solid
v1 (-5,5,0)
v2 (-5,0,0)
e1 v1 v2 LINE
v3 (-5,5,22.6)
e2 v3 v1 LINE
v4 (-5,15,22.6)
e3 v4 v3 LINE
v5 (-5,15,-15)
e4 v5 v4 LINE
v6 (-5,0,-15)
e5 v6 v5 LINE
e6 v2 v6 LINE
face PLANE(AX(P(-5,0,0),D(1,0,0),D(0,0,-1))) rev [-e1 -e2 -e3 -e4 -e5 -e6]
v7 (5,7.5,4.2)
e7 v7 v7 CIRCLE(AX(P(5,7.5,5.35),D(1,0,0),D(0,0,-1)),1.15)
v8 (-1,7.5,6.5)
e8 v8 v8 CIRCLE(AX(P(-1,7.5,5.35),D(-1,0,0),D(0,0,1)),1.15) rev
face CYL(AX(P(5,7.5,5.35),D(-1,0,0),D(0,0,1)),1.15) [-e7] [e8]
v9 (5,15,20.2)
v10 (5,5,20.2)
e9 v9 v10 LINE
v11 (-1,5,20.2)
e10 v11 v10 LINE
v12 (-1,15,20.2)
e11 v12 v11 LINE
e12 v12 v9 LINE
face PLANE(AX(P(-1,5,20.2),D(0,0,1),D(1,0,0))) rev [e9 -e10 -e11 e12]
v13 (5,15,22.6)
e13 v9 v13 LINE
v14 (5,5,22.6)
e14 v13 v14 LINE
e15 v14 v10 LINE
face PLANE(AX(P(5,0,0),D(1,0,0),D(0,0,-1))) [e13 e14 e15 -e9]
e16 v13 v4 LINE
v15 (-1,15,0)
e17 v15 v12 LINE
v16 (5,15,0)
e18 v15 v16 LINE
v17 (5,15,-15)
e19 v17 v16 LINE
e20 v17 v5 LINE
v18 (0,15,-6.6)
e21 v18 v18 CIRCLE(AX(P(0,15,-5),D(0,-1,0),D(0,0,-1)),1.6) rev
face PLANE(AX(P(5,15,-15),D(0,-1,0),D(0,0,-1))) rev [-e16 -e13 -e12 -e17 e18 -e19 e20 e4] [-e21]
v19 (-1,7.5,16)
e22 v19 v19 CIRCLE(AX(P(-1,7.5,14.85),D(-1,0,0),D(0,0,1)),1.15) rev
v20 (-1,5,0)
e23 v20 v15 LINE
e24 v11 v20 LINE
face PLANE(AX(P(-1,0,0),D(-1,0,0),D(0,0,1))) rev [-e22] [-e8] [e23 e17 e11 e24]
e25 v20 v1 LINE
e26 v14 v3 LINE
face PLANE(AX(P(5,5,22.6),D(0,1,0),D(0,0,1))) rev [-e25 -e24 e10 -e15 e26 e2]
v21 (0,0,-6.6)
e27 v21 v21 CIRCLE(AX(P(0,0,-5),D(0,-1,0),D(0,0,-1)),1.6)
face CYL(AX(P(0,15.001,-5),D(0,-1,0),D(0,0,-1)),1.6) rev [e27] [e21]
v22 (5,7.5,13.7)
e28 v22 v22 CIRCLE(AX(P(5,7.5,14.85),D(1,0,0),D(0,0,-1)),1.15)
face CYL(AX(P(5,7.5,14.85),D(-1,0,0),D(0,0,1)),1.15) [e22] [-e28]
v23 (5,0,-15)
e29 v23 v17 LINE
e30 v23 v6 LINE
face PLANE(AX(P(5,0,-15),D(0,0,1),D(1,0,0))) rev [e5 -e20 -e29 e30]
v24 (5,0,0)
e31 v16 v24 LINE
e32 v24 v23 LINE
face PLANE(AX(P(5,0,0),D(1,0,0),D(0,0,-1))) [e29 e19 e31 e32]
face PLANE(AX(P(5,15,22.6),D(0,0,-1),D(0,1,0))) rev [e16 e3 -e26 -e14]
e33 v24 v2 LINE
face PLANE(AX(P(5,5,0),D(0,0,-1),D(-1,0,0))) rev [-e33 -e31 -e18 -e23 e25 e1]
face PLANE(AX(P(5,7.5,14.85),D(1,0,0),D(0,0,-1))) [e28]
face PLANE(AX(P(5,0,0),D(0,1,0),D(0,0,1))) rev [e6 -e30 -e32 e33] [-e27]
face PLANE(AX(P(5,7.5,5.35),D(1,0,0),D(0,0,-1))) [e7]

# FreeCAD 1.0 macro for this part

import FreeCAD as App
import Part
import Sketcher
Q = App.Units.Quantity

doc = App.newDocument("Part")
body = doc.addObject("PartDesign::Body", "Body")

sketch1 = body.newObject("Sketcher::SketchObject", "Sketch")
sketch1.AttachmentSupport = (doc.getObject("YZ_Plane"), [""])
sketch1.MapMode = "FlatFace"
sketch1.addGeometry([
    Part.LineSegment(App.Vector(0, 0, 0), App.Vector(0, -15, 0)),
    Part.LineSegment(App.Vector(0, -15, 0), App.Vector(15, -15, 0)),
    Part.LineSegment(App.Vector(15, -15, 0), App.Vector(15, 23, 0)),
    Part.LineSegment(App.Vector(15, 23, 0), App.Vector(5, 23, 0)),
    Part.LineSegment(App.Vector(5, 23, 0), App.Vector(5, 0, 0)),
    Part.LineSegment(App.Vector(5, 0, 0), App.Vector(0, 0, 0)),
], False)
sketch1.addConstraint([
    Sketcher.Constraint("Coincident", 0, 2, 1, 1),
    Sketcher.Constraint("Coincident", 1, 2, 2, 1),
    Sketcher.Constraint("Coincident", 2, 2, 3, 1),
    Sketcher.Constraint("Coincident", 3, 2, 4, 1),
    Sketcher.Constraint("Coincident", 4, 2, 5, 1),
    Sketcher.Constraint("Coincident", 5, 2, 0, 1),
    Sketcher.Constraint("Vertical", 0),
    Sketcher.Constraint("Horizontal", 1),
    Sketcher.Constraint("Vertical", 2),
    Sketcher.Constraint("Horizontal", 3),
    Sketcher.Constraint("Vertical", 4),
    Sketcher.Constraint("Horizontal", 5),
    Sketcher.Constraint("Coincident", 5, 2, -1, 1),
    Sketcher.Constraint("Equal", 1, 0),
    Sketcher.Constraint("DistanceX", 1, 1, 1, 2, Q("15 mm")),
    Sketcher.Constraint("DistanceX", 3, 2, 3, 1, Q("10 mm")),
    Sketcher.Constraint("DistanceY", 2, 1, 2, 2, Q("37.6 mm")),
])
pad1 = body.newObject("PartDesign::Pad", "Pad")
pad1.Profile = sketch1
pad1.Length = 10
pad1.Midplane = True

sketch2 = body.newObject("Sketcher::SketchObject", "Sketch001")
sketch2.AttachmentSupport = (doc.getObject("YZ_Plane"), [""])
sketch2.MapMode = "FlatFace"
sketch2.AttachmentOffset = App.Placement(App.Vector(0, 0, 5), App.Rotation())
sketch2.addGeometry([
    Part.LineSegment(App.Vector(15, 20, 0), App.Vector(5, 20, 0)),
    Part.LineSegment(App.Vector(5, 20, 0), App.Vector(5, 0, 0)),
    Part.LineSegment(App.Vector(5, 0, 0), App.Vector(15, 0, 0)),
    Part.LineSegment(App.Vector(15, 0, 0), App.Vector(15, 20, 0)),
], False)
sketch2.addConstraint([
    Sketcher.Constraint("Coincident", 0, 2, 1, 1),
    Sketcher.Constraint("Coincident", 1, 2, 2, 1),
    Sketcher.Constraint("Coincident", 2, 2, 3, 1),
    Sketcher.Constraint("Coincident", 3, 2, 0, 1),
    Sketcher.Constraint("Horizontal", 0),
    Sketcher.Constraint("Vertical", 1),
    Sketcher.Constraint("Horizontal", 2),
    Sketcher.Constraint("Vertical", 3),
    Sketcher.Constraint("PointOnObject", 1, 2, -1),
    Sketcher.Constraint("DistanceX", 0, 2, 0, 1, Q("10 mm")),
    Sketcher.Constraint("DistanceY", 1, 2, 1, 1, Q("20.2 mm")),
    Sketcher.Constraint("DistanceX", -1, 1, 0, 2, Q("5 mm")),
])
pocket1 = body.newObject("PartDesign::Pocket", "Pocket")
pocket1.Profile = sketch2
pocket1.Length = 6

sketch3 = body.newObject("Sketcher::SketchObject", "Sketch002")
sketch3.AttachmentSupport = (doc.getObject("YZ_Plane"), [""])
sketch3.MapMode = "FlatFace"
sketch3.AttachmentOffset = App.Placement(App.Vector(0, 0, -1), App.Rotation())
sketch3.addGeometry([
    Part.Circle(App.Vector(7.5, 14.8, 0), App.Vector(0, 0, 1), 1.1),
    Part.Circle(App.Vector(7.5, 5.3, 0), App.Vector(0, 0, 1), 1.1),
], False)
sketch3.addConstraint([
    Sketcher.Constraint("Equal", 0, 1),
    Sketcher.Constraint("Vertical", 0, 3, 1, 3),
    Sketcher.Constraint("Diameter", 0, Q("2.3 mm")),
    Sketcher.Constraint("DistanceX", -1, 1, 0, 3, Q("7.5 mm")),
    Sketcher.Constraint("DistanceY", 1, 3, 0, 3, Q("9.5 mm")),
    Sketcher.Constraint("DistanceY", -1, 1, 0, 3, Q("14.85 mm")),
])
pad2 = body.newObject("PartDesign::Pad", "Pad001")
pad2.Profile = sketch3
pad2.Length = 6

sketch4 = body.newObject("Sketcher::SketchObject", "Sketch003")
sketch4.AttachmentSupport = (doc.getObject("XZ_Plane"), [""])
sketch4.MapMode = "FlatFace"
sketch4.addGeometry(Part.Circle(App.Vector(0, -5, 0), App.Vector(0, 0, 1), 1.6), False)
sketch4.addConstraint([
    Sketcher.Constraint("PointOnObject", 0, 3, -2),
    Sketcher.Constraint("Diameter", 0, Q("3.2 mm")),
    Sketcher.Constraint("DistanceY", 0, 3, -1, 1, Q("5 mm")),
])
pocket2 = body.newObject("PartDesign::Pocket", "Pocket001")
pocket2.Profile = sketch4
pocket2.Type = "UpToFirst"

doc.recompute()
